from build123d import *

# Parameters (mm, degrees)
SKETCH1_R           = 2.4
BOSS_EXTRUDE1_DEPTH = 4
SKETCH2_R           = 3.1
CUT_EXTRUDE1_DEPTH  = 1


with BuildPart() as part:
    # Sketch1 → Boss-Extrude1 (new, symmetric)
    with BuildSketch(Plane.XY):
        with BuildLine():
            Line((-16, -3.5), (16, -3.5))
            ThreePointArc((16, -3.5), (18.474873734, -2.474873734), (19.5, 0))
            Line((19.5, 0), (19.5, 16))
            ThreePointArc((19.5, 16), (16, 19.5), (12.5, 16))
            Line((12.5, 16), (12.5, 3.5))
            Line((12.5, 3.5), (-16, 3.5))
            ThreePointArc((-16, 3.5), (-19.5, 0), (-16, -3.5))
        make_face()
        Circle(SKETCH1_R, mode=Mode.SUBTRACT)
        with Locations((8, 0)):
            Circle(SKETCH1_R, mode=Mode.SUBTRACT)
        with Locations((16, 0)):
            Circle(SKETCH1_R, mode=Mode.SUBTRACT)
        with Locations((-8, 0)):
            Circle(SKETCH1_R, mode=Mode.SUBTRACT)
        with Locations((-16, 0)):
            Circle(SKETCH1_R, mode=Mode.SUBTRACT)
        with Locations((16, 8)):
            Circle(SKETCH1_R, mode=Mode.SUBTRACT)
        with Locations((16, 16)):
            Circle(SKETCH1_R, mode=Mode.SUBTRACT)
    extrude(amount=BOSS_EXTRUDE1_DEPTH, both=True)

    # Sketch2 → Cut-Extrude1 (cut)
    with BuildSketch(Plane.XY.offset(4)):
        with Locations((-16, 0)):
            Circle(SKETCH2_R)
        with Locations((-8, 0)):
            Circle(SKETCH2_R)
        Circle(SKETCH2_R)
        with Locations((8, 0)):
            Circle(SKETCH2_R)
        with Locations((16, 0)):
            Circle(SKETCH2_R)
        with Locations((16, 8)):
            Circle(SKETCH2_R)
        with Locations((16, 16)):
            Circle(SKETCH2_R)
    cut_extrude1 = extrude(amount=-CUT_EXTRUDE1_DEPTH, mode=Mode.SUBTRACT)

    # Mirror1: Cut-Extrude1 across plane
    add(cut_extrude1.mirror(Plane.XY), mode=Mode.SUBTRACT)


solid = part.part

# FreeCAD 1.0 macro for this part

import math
import FreeCAD as App
import Part
import Sketcher

V = App.Vector
Q = App.Units.Quantity

doc = App.newDocument("Part")
body = doc.addObject("PartDesign::Body", "Body")

# Sketch on XY plane
sketch1 = body.newObject("Sketcher::SketchObject", "Sketch")
sketch1.AttachmentSupport = (doc.getObject("XY_Plane"), [""])
sketch1.MapMode = "FlatFace"
sketch1.addGeometry([
    Part.LineSegment(V(-16, -3.5, 0), V(16, -3.5, 0)),  # 0
    Part.ArcOfCircle(Part.Circle(V(16, 0, 0), V(0, 0, 1), 3.5), math.radians(-90), math.radians(0)),  # 1
    Part.LineSegment(V(19.5, 0, 0), V(19.5, 16, 0)),  # 2
    Part.ArcOfCircle(Part.Circle(V(16, 16, 0), V(0, 0, 1), 3.5), math.radians(0), math.radians(180)),  # 3
    Part.LineSegment(V(12.5, 16, 0), V(12.5, 3.5, 0)),  # 4
    Part.LineSegment(V(12.5, 3.5, 0), V(-16, 3.5, 0)),  # 5
    Part.ArcOfCircle(Part.Circle(V(-16, 0, 0), V(0, 0, 1), 3.5), math.radians(90), math.radians(270)),  # 6
    Part.Circle(V(-16, 0, 0), V(0, 0, 1), 2.4),  # 7
    Part.Circle(V(-8, 0, 0), V(0, 0, 1), 2.4),  # 8
    Part.Circle(V(0, 0, 0), V(0, 0, 1), 2.4),  # 9
    Part.Circle(V(8, 0, 0), V(0, 0, 1), 2.4),  # 10
    Part.Circle(V(16, 0, 0), V(0, 0, 1), 2.4),  # 11
    Part.Circle(V(16, 8, 0), V(0, 0, 1), 2.4),  # 12
    Part.Circle(V(16, 16, 0), V(0, 0, 1), 2.4),  # 13
], False)
sketch1.addConstraint([
    Sketcher.Constraint("Tangent", 0, 2, 1, 1),
    Sketcher.Constraint("Tangent", 1, 2, 2, 1),
    Sketcher.Constraint("Tangent", 2, 2, 3, 1),
    Sketcher.Constraint("Tangent", 3, 2, 4, 1),
    Sketcher.Constraint("Coincident", 4, 2, 5, 1),
    Sketcher.Constraint("Tangent", 5, 2, 6, 1),
    Sketcher.Constraint("Tangent", 6, 2, 0, 1),
    Sketcher.Constraint("Horizontal", 0),
    Sketcher.Constraint("Vertical", 2),
    Sketcher.Constraint("Vertical", 4),
    Sketcher.Constraint("Horizontal", 5),
    Sketcher.Constraint("Coincident", 9, 3, -1, 1),
    Sketcher.Constraint("Coincident", 7, 3, 6, 3),
    Sketcher.Constraint("Coincident", 11, 3, 1, 3),
    Sketcher.Constraint("Coincident", 13, 3, 3, 3),
    Sketcher.Constraint("Equal", 1, 3),
    Sketcher.Constraint("Equal", 3, 6),
    Sketcher.Constraint("Equal", 7, 8),
    Sketcher.Constraint("Equal", 8, 9),
    Sketcher.Constraint("Equal", 9, 10),
    Sketcher.Constraint("Equal", 10, 11),
    Sketcher.Constraint("Equal", 11, 12),
    Sketcher.Constraint("Equal", 12, 13),
    Sketcher.Constraint("Symmetric", 1, 3, 6, 3, -1, 1),
    Sketcher.Constraint("Symmetric", 8, 3, 10, 3, -1, 1),
    Sketcher.Constraint("PointOnObject", 8, 3, -1),
    Sketcher.Constraint("Vertical", 11, 3, 12, 3),
    Sketcher.Constraint("Diameter", 7, Q("4.8 mm")),
    Sketcher.Constraint("Radius", 1, Q("3.5 mm")),
    Sketcher.Constraint("DistanceX", 0, 1, 0, 2, Q("32 mm")),
    Sketcher.Constraint("DistanceY", 2, 1, 2, 2, Q("16 mm")),
    Sketcher.Constraint("DistanceX", 8, 3, -1, 1, Q("8 mm")),
    Sketcher.Constraint("DistanceY", -1, 1, 12, 3, Q("8 mm")),
])
pad1 = body.newObject("PartDesign::Pad", "Pad")
pad1.Profile = sketch1
pad1.Length = 8
pad1.Midplane = True

# Sketch on XY plane
sketch2 = body.newObject("Sketcher::SketchObject", "Sketch001")
sketch2.AttachmentSupport = (doc.getObject("XY_Plane"), [""])
sketch2.MapMode = "FlatFace"
sketch2.AttachmentOffset = App.Placement(V(0, 0, 4), App.Rotation())
sketch2.addGeometry([
    Part.Circle(V(-16, 0, 0), V(0, 0, 1), 3.1),  # 0
    Part.Circle(V(-8, 0, 0), V(0, 0, 1), 3.1),  # 1
    Part.Circle(V(0, 0, 0), V(0, 0, 1), 3.1),  # 2
    Part.Circle(V(8, 0, 0), V(0, 0, 1), 3.1),  # 3
    Part.Circle(V(16, 0, 0), V(0, 0, 1), 3.1),  # 4
    Part.Circle(V(16, 8, 0), V(0, 0, 1), 3.1),  # 5
    Part.Circle(V(16, 16, 0), V(0, 0, 1), 3.1),  # 6
], False)
sketch2.addConstraint([
    Sketcher.Constraint("Coincident", 2, 3, -1, 1),
    Sketcher.Constraint("Equal", 0, 1),
    Sketcher.Constraint("Equal", 1, 2),
    Sketcher.Constraint("Equal", 2, 3),
    Sketcher.Constraint("Equal", 3, 4),
    Sketcher.Constraint("Equal", 4, 5),
    Sketcher.Constraint("Equal", 5, 6),
    Sketcher.Constraint("Symmetric", 1, 3, 3, 3, -1, 1),
    Sketcher.Constraint("Symmetric", 0, 3, 4, 3, -1, 1),
    Sketcher.Constraint("PointOnObject", 0, 3, -1),
    Sketcher.Constraint("PointOnObject", 1, 3, -1),
    Sketcher.Constraint("Vertical", 4, 3, 5, 3),
    Sketcher.Constraint("Vertical", 5, 3, 6, 3),
    Sketcher.Constraint("Diameter", 0, Q("6.2 mm")),
    Sketcher.Constraint("DistanceX", 0, 3, -1, 1, Q("16 mm")),
    Sketcher.Constraint("DistanceX", 1, 3, -1, 1, Q("8 mm")),
    Sketcher.Constraint("DistanceY", -1, 1, 5, 3, Q("8 mm")),
    Sketcher.Constraint("DistanceY", -1, 1, 6, 3, Q("16 mm")),
])
pocket1 = body.newObject("PartDesign::Pocket", "Pocket")
pocket1.Profile = sketch2
pocket1.Length = 1
doc.recompute()

mirrored = body.newObject("PartDesign::Mirrored", "Mirrored")
mirrored.Originals = [pocket1]
mirrored.MirrorPlane = (doc.getObject("XY_Plane"), [""])
body.Tip = mirrored

doc.recompute()
